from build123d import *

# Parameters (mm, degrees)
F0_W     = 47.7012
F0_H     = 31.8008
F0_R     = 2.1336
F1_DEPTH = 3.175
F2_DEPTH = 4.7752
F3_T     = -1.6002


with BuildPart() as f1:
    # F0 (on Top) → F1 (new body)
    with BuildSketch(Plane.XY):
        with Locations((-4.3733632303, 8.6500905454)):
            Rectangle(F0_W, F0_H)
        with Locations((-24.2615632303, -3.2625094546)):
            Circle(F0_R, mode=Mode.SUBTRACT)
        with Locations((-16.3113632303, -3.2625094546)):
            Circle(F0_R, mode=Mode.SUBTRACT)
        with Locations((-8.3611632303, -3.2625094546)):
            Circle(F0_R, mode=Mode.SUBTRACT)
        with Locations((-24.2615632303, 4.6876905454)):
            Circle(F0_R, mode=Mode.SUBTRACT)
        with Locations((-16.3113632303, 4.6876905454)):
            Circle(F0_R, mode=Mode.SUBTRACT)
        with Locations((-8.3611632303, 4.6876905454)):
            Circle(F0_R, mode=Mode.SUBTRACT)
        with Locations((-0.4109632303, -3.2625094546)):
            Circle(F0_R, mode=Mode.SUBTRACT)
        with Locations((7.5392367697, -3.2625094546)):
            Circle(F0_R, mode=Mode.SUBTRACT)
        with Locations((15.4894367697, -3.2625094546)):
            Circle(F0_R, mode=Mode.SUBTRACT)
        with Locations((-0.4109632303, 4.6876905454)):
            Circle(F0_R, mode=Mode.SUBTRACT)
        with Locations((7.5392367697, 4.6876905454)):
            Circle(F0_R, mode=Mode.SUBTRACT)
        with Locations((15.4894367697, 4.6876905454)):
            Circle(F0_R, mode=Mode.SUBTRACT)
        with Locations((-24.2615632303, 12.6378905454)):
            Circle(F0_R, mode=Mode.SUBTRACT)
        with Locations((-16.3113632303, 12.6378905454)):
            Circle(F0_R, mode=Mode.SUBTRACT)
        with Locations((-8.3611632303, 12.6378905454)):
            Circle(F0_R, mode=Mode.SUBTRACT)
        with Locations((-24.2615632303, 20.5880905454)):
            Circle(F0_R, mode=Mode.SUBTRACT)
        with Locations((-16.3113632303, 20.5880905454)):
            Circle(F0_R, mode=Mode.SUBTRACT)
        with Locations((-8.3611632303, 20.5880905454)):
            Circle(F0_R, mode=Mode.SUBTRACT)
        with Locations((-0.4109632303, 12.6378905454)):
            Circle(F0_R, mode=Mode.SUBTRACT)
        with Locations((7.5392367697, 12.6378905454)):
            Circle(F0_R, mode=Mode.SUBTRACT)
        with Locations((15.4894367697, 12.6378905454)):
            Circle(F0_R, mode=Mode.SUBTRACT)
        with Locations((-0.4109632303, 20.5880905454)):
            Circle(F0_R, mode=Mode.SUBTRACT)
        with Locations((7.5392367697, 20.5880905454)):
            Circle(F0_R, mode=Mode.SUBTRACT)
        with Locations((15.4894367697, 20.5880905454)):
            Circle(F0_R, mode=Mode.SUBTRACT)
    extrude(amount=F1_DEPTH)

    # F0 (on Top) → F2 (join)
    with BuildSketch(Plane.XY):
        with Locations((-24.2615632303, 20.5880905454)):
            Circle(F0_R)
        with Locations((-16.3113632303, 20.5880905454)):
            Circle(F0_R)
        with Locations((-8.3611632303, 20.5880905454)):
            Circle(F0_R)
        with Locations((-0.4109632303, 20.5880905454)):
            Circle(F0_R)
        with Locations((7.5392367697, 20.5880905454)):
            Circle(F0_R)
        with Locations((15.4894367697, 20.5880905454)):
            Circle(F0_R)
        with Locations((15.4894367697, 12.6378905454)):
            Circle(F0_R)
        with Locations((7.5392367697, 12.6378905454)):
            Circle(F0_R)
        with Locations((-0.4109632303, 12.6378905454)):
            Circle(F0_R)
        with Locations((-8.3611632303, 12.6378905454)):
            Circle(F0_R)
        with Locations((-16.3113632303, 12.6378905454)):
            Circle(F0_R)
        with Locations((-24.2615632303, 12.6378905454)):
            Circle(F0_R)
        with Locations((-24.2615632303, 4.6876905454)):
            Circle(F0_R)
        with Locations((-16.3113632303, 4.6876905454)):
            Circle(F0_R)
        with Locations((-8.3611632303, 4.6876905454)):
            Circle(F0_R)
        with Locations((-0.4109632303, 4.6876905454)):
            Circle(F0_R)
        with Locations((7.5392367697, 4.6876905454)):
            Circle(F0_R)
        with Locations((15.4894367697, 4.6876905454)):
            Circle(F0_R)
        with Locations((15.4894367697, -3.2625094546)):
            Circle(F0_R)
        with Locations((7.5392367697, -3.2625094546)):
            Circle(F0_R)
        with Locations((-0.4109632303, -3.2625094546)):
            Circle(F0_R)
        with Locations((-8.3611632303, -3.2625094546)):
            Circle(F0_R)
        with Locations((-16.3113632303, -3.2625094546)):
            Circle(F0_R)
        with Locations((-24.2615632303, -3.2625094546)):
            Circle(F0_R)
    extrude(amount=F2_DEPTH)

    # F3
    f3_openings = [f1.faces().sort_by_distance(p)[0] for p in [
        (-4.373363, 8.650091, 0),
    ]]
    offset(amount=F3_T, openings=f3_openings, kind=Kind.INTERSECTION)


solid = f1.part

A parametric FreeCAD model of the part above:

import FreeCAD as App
import Part
import Sketcher
Q = App.Units.Quantity


def faces_at(feature, points):
    """Names of the faces that lie closest to the given points."""
    faces = feature.Shape.Faces
    near = lambda p: min(range(len(faces)), key=lambda i: faces[i].distToShape(Part.Vertex(*p))[0])
    return sorted({f"Face{near(p) + 1}" for p in points})


def add_polygon(sketch, points):
    """Adds a closed chain of lines whose ends are joined by coincident constraints."""
    first, n = sketch.GeometryCount, len(points)
    for a, b in zip(points, points[1:] + points[:1]):
        sketch.addGeometry(Part.LineSegment(App.Vector(*a, 0), App.Vector(*b, 0)), False)
    for i in range(n):
        sketch.addConstraint(Sketcher.Constraint("Coincident", first + i, 2, first + (i + 1) % n, 1))

doc = App.newDocument("Part")
body = doc.addObject("PartDesign::Body", "Body")

sketch1 = body.newObject("Sketcher::SketchObject", "Sketch")
sketch1.AttachmentSupport = (doc.getObject("XY_Plane"), [""])
sketch1.MapMode = "FlatFace"
add_polygon(sketch1, [(-28.223963, 24.550491), (-28.223963, -7.250309), (19.477237, -7.250309), (19.477237, 24.550491)])
sketch1.addGeometry(Part.Circle(App.Vector(-24.261563, -3.262509, 0), App.Vector(0, 0, 1), 2.1336), False)
sketch1.addGeometry(Part.Circle(App.Vector(-16.311363, -3.262509, 0), App.Vector(0, 0, 1), 2.1336), False)
sketch1.addGeometry(Part.Circle(App.Vector(-8.361163, -3.262509, 0), App.Vector(0, 0, 1), 2.1336), False)
sketch1.addGeometry(Part.Circle(App.Vector(-24.261563, 4.687691, 0), App.Vector(0, 0, 1), 2.1336), False)
sketch1.addGeometry(Part.Circle(App.Vector(-16.311363, 4.687691, 0), App.Vector(0, 0, 1), 2.1336), False)
sketch1.addGeometry(Part.Circle(App.Vector(-8.361163, 4.687691, 0), App.Vector(0, 0, 1), 2.1336), False)
sketch1.addGeometry(Part.Circle(App.Vector(-0.410963, -3.262509, 0), App.Vector(0, 0, 1), 2.1336), False)
sketch1.addGeometry(Part.Circle(App.Vector(7.539237, -3.262509, 0), App.Vector(0, 0, 1), 2.1336), False)
sketch1.addGeometry(Part.Circle(App.Vector(15.489437, -3.262509, 0), App.Vector(0, 0, 1), 2.1336), False)
sketch1.addGeometry(Part.Circle(App.Vector(-0.410963, 4.687691, 0), App.Vector(0, 0, 1), 2.1336), False)
sketch1.addGeometry(Part.Circle(App.Vector(7.539237, 4.687691, 0), App.Vector(0, 0, 1), 2.1336), False)
sketch1.addGeometry(Part.Circle(App.Vector(15.489437, 4.687691, 0), App.Vector(0, 0, 1), 2.1336), False)
sketch1.addGeometry(Part.Circle(App.Vector(-24.261563, 12.637891, 0), App.Vector(0, 0, 1), 2.1336), False)
sketch1.addGeometry(Part.Circle(App.Vector(-16.311363, 12.637891, 0), App.Vector(0, 0, 1), 2.1336), False)
sketch1.addGeometry(Part.Circle(App.Vector(-8.361163, 12.637891, 0), App.Vector(0, 0, 1), 2.1336), False)
sketch1.addGeometry(Part.Circle(App.Vector(-24.261563, 20.588091, 0), App.Vector(0, 0, 1), 2.1336), False)
sketch1.addGeometry(Part.Circle(App.Vector(-16.311363, 20.588091, 0), App.Vector(0, 0, 1), 2.1336), False)
sketch1.addGeometry(Part.Circle(App.Vector(-8.361163, 20.588091, 0), App.Vector(0, 0, 1), 2.1336), False)
sketch1.addGeometry(Part.Circle(App.Vector(-0.410963, 12.637891, 0), App.Vector(0, 0, 1), 2.1336), False)
sketch1.addGeometry(Part.Circle(App.Vector(7.539237, 12.637891, 0), App.Vector(0, 0, 1), 2.1336), False)
sketch1.addGeometry(Part.Circle(App.Vector(15.489437, 12.637891, 0), App.Vector(0, 0, 1), 2.1336), False)
sketch1.addGeometry(Part.Circle(App.Vector(-0.410963, 20.588091, 0), App.Vector(0, 0, 1), 2.1336), False)
sketch1.addGeometry(Part.Circle(App.Vector(7.539237, 20.588091, 0), App.Vector(0, 0, 1), 2.1336), False)
sketch1.addGeometry(Part.Circle(App.Vector(15.489437, 20.588091, 0), App.Vector(0, 0, 1), 2.1336), False)
sketch1.addConstraint([
    Sketcher.Constraint("Vertical", 0),
    Sketcher.Constraint("Horizontal", 1),
    Sketcher.Constraint("Vertical", 2),
    Sketcher.Constraint("Horizontal", 3),
    Sketcher.Constraint("Equal", 4, 5),
    Sketcher.Constraint("Equal", 5, 6),
    Sketcher.Constraint("Equal", 6, 7),
    Sketcher.Constraint("Equal", 7, 8),
    Sketcher.Constraint("Equal", 8, 9),
    Sketcher.Constraint("Equal", 9, 10),
    Sketcher.Constraint("Equal", 10, 11),
    Sketcher.Constraint("Equal", 11, 12),
    Sketcher.Constraint("Equal", 12, 13),
    Sketcher.Constraint("Equal", 13, 14),
    Sketcher.Constraint("Equal", 14, 15),
    Sketcher.Constraint("Equal", 15, 16),
    Sketcher.Constraint("Equal", 16, 17),
    Sketcher.Constraint("Equal", 17, 18),
    Sketcher.Constraint("Equal", 18, 19),
    Sketcher.Constraint("Equal", 19, 20),
    Sketcher.Constraint("Equal", 20, 21),
    Sketcher.Constraint("Equal", 21, 22),
    Sketcher.Constraint("Equal", 22, 23),
    Sketcher.Constraint("Equal", 23, 24),
    Sketcher.Constraint("Equal", 24, 25),
    Sketcher.Constraint("Equal", 25, 26),
    Sketcher.Constraint("Equal", 26, 27),
    Sketcher.Constraint("Horizontal", 4, 3, 5, 3),
    Sketcher.Constraint("Horizontal", 5, 3, 6, 3),
    Sketcher.Constraint("Horizontal", 7, 3, 8, 3),
    Sketcher.Constraint("Horizontal", 8, 3, 9, 3),
    Sketcher.Constraint("Horizontal", 6, 3, 10, 3),
    Sketcher.Constraint("Horizontal", 10, 3, 11, 3),
    Sketcher.Constraint("Horizontal", 11, 3, 12, 3),
    Sketcher.Constraint("Horizontal", 9, 3, 13, 3),
    Sketcher.Constraint("Horizontal", 13, 3, 14, 3),
    Sketcher.Constraint("Horizontal", 14, 3, 15, 3),
    Sketcher.Constraint("Horizontal", 16, 3, 17, 3),
    Sketcher.Constraint("Horizontal", 17, 3, 18, 3),
    Sketcher.Constraint("Horizontal", 19, 3, 20, 3),
    Sketcher.Constraint("Horizontal", 20, 3, 21, 3),
    Sketcher.Constraint("Horizontal", 18, 3, 22, 3),
    Sketcher.Constraint("Horizontal", 22, 3, 23, 3),
    Sketcher.Constraint("Horizontal", 23, 3, 24, 3),
    Sketcher.Constraint("Horizontal", 21, 3, 25, 3),
    Sketcher.Constraint("Horizontal", 25, 3, 26, 3),
    Sketcher.Constraint("Horizontal", 26, 3, 27, 3),
    Sketcher.Constraint("Vertical", 4, 3, 7, 3),
    Sketcher.Constraint("Vertical", 5, 3, 8, 3),
    Sketcher.Constraint("Vertical", 6, 3, 9, 3),
    Sketcher.Constraint("Vertical", 10, 3, 13, 3),
    Sketcher.Constraint("Vertical", 11, 3, 14, 3),
    Sketcher.Constraint("Vertical", 12, 3, 15, 3),
    Sketcher.Constraint("Vertical", 7, 3, 16, 3),
    Sketcher.Constraint("Vertical", 8, 3, 17, 3),
    Sketcher.Constraint("Vertical", 9, 3, 18, 3),
    Sketcher.Constraint("Vertical", 16, 3, 19, 3),
    Sketcher.Constraint("Vertical", 17, 3, 20, 3),
    Sketcher.Constraint("Vertical", 18, 3, 21, 3),
    Sketcher.Constraint("Vertical", 13, 3, 22, 3),
    Sketcher.Constraint("Vertical", 14, 3, 23, 3),
    Sketcher.Constraint("Vertical", 15, 3, 24, 3),
    Sketcher.Constraint("Vertical", 22, 3, 25, 3),
    Sketcher.Constraint("Vertical", 23, 3, 26, 3),
    Sketcher.Constraint("Vertical", 24, 3, 27, 3),
    Sketcher.Constraint("Diameter", 4, Q("0.168 in")),
    Sketcher.Constraint("DistanceX", 1, 1, 1, 2, Q("1.878 in")),
    Sketcher.Constraint("DistanceY", 0, 2, 0, 1, Q("1.252 in")),
    Sketcher.Constraint("DistanceY", 0, 2, 7, 3, Q("0.47 in")),
    Sketcher.Constraint("DistanceX", 11, 3, 1, 2, Q("0.47 in")),
    Sketcher.Constraint("DistanceX", 4, 3, 5, 3, Q("0.313 in")),
    Sketcher.Constraint("DistanceX", 5, 3, 6, 3, Q("0.313 in")),
    Sketcher.Constraint("DistanceY", 4, 3, 7, 3, Q("0.313 in")),
    Sketcher.Constraint("DistanceX", 6, 3, 10, 3, Q("0.313 in")),
    Sketcher.Constraint("DistanceX", 10, 3, 11, 3, Q("0.313 in")),
    Sketcher.Constraint("DistanceX", 11, 3, 12, 3, Q("0.313 in")),
    Sketcher.Constraint("DistanceY", 7, 3, 16, 3, Q("0.313 in")),
    Sketcher.Constraint("DistanceY", 16, 3, 19, 3, Q("0.313 in")),
    Sketcher.Constraint("DistanceY", 4, 3, -1, 1, Q("3.262509 mm")),
    Sketcher.Constraint("DistanceX", 4, 3, -1, 1, Q("24.261563 mm")),
])
pad1 = body.newObject("PartDesign::Pad", "Pad")
pad1.Profile = sketch1
pad1.Length = Q("0.125 in")

sketch2 = body.newObject("Sketcher::SketchObject", "Sketch001")
sketch2.AttachmentSupport = (doc.getObject("XY_Plane"), [""])
sketch2.MapMode = "FlatFace"
sketch2.addGeometry([
    Part.Circle(App.Vector(-24.261563, 20.588091, 0), App.Vector(0, 0, 1), 2.1336),
    Part.Circle(App.Vector(-16.311363, 20.588091, 0), App.Vector(0, 0, 1), 2.1336),
    Part.Circle(App.Vector(-8.361163, 20.588091, 0), App.Vector(0, 0, 1), 2.1336),
    Part.Circle(App.Vector(-0.410963, 20.588091, 0), App.Vector(0, 0, 1), 2.1336),
    Part.Circle(App.Vector(7.539237, 20.588091, 0), App.Vector(0, 0, 1), 2.1336),
    Part.Circle(App.Vector(15.489437, 20.588091, 0), App.Vector(0, 0, 1), 2.1336),
    Part.Circle(App.Vector(15.489437, 12.637891, 0), App.Vector(0, 0, 1), 2.1336),
    Part.Circle(App.Vector(7.539237, 12.637891, 0), App.Vector(0, 0, 1), 2.1336),
    Part.Circle(App.Vector(-0.410963, 12.637891, 0), App.Vector(0, 0, 1), 2.1336),
    Part.Circle(App.Vector(-8.361163, 12.637891, 0), App.Vector(0, 0, 1), 2.1336),
    Part.Circle(App.Vector(-16.311363, 12.637891, 0), App.Vector(0, 0, 1), 2.1336),
    Part.Circle(App.Vector(-24.261563, 12.637891, 0), App.Vector(0, 0, 1), 2.1336),
    Part.Circle(App.Vector(-24.261563, 4.687691, 0), App.Vector(0, 0, 1), 2.1336),
    Part.Circle(App.Vector(-16.311363, 4.687691, 0), App.Vector(0, 0, 1), 2.1336),
    Part.Circle(App.Vector(-8.361163, 4.687691, 0), App.Vector(0, 0, 1), 2.1336),
    Part.Circle(App.Vector(-0.410963, 4.687691, 0), App.Vector(0, 0, 1), 2.1336),
    Part.Circle(App.Vector(7.539237, 4.687691, 0), App.Vector(0, 0, 1), 2.1336),
    Part.Circle(App.Vector(15.489437, 4.687691, 0), App.Vector(0, 0, 1), 2.1336),
    Part.Circle(App.Vector(15.489437, -3.262509, 0), App.Vector(0, 0, 1), 2.1336),
    Part.Circle(App.Vector(7.539237, -3.262509, 0), App.Vector(0, 0, 1), 2.1336),
    Part.Circle(App.Vector(-0.410963, -3.262509, 0), App.Vector(0, 0, 1), 2.1336),
    Part.Circle(App.Vector(-8.361163, -3.262509, 0), App.Vector(0, 0, 1), 2.1336),
    Part.Circle(App.Vector(-16.311363, -3.262509, 0), App.Vector(0, 0, 1), 2.1336),
    Part.Circle(App.Vector(-24.261563, -3.262509, 0), App.Vector(0, 0, 1), 2.1336),
], False)
sketch2.addConstraint([
    Sketcher.Constraint("Equal", 0, 1),
    Sketcher.Constraint("Equal", 1, 2),
    Sketcher.Constraint("Equal", 2, 3),
    Sketcher.Constraint("Equal", 3, 4),
    Sketcher.Constraint("Equal", 4, 5),
    Sketcher.Constraint("Equal", 5, 6),
    Sketcher.Constraint("Equal", 6, 7),
    Sketcher.Constraint("Equal", 7, 8),
    Sketcher.Constraint("Equal", 8, 9),
    Sketcher.Constraint("Equal", 9, 10),
    Sketcher.Constraint("Equal", 10, 11),
    Sketcher.Constraint("Equal", 11, 12),
    Sketcher.Constraint("Equal", 12, 13),
    Sketcher.Constraint("Equal", 13, 14),
    Sketcher.Constraint("Equal", 14, 15),
    Sketcher.Constraint("Equal", 15, 16),
    Sketcher.Constraint("Equal", 16, 17),
    Sketcher.Constraint("Equal", 17, 18),
    Sketcher.Constraint("Equal", 18, 19),
    Sketcher.Constraint("Equal", 19, 20),
    Sketcher.Constraint("Equal", 20, 21),
    Sketcher.Constraint("Equal", 21, 22),
    Sketcher.Constraint("Equal", 22, 23),
    Sketcher.Constraint("Horizontal", 0, 3, 1, 3),
    Sketcher.Constraint("Horizontal", 1, 3, 2, 3),
    Sketcher.Constraint("Horizontal", 2, 3, 3, 3),
    Sketcher.Constraint("Horizontal", 3, 3, 4, 3),
    Sketcher.Constraint("Horizontal", 4, 3, 5, 3),
    Sketcher.Constraint("Horizontal", 6, 3, 7, 3),
    Sketcher.Constraint("Horizontal", 7, 3, 8, 3),
    Sketcher.Constraint("Horizontal", 8, 3, 9, 3),
    Sketcher.Constraint("Horizontal", 9, 3, 10, 3),
    Sketcher.Constraint("Horizontal", 10, 3, 11, 3),
    Sketcher.Constraint("Horizontal", 12, 3, 13, 3),
    Sketcher.Constraint("Horizontal", 13, 3, 14, 3),
    Sketcher.Constraint("Horizontal", 14, 3, 15, 3),
    Sketcher.Constraint("Horizontal", 15, 3, 16, 3),
    Sketcher.Constraint("Horizontal", 16, 3, 17, 3),
    Sketcher.Constraint("Horizontal", 18, 3, 19, 3),
    Sketcher.Constraint("Horizontal", 19, 3, 20, 3),
    Sketcher.Constraint("Horizontal", 20, 3, 21, 3),
    Sketcher.Constraint("Horizontal", 21, 3, 22, 3),
    Sketcher.Constraint("Horizontal", 22, 3, 23, 3),
    Sketcher.Constraint("Vertical", 5, 3, 6, 3),
    Sketcher.Constraint("Vertical", 4, 3, 7, 3),
    Sketcher.Constraint("Vertical", 3, 3, 8, 3),
    Sketcher.Constraint("Vertical", 2, 3, 9, 3),
    Sketcher.Constraint("Vertical", 1, 3, 10, 3),
    Sketcher.Constraint("Vertical", 0, 3, 11, 3),
    Sketcher.Constraint("Vertical", 11, 3, 12, 3),
    Sketcher.Constraint("Vertical", 10, 3, 13, 3),
    Sketcher.Constraint("Vertical", 9, 3, 14, 3),
    Sketcher.Constraint("Vertical", 8, 3, 15, 3),
    Sketcher.Constraint("Vertical", 7, 3, 16, 3),
    Sketcher.Constraint("Vertical", 6, 3, 17, 3),
    Sketcher.Constraint("Vertical", 17, 3, 18, 3),
    Sketcher.Constraint("Vertical", 16, 3, 19, 3),
    Sketcher.Constraint("Vertical", 15, 3, 20, 3),
    Sketcher.Constraint("Vertical", 14, 3, 21, 3),
    Sketcher.Constraint("Vertical", 13, 3, 22, 3),
    Sketcher.Constraint("Vertical", 12, 3, 23, 3),
    Sketcher.Constraint("Diameter", 0, Q("0.168 in")),
    Sketcher.Constraint("DistanceX", 0, 3, 1, 3, Q("0.313 in")),
    Sketcher.Constraint("DistanceX", 1, 3, 2, 3, Q("0.313 in")),
    Sketcher.Constraint("DistanceX", 2, 3, 3, 3, Q("0.313 in")),
    Sketcher.Constraint("DistanceX", 3, 3, 4, 3, Q("0.313 in")),
    Sketcher.Constraint("DistanceX", 4, 3, 5, 3, Q("0.313 in")),
    Sketcher.Constraint("DistanceY", 6, 3, 5, 3, Q("0.313 in")),
    Sketcher.Constraint("DistanceY", 12, 3, 11, 3, Q("0.313 in")),
    Sketcher.Constraint("DistanceY", 18, 3, 17, 3, Q("0.313 in")),
    Sketcher.Constraint("DistanceY", -1, 1, 0, 3, Q("20.588091 mm")),
    Sketcher.Constraint("DistanceX", 0, 3, -1, 1, Q("24.261563 mm")),
])
pad2 = body.newObject("PartDesign::Pad", "Pad001")
pad2.Profile = sketch2
pad2.Length = Q("0.188 in")
doc.recompute()

thickness = body.newObject("PartDesign::Thickness", "Thickness")
thickness.Base = (pad2, faces_at(pad2, [(-4.373, 8.65, 0)]))
thickness.Value = Q("0.063 in")
thickness.Reversed = True
thickness.Join = "Intersection"

doc.recompute()
